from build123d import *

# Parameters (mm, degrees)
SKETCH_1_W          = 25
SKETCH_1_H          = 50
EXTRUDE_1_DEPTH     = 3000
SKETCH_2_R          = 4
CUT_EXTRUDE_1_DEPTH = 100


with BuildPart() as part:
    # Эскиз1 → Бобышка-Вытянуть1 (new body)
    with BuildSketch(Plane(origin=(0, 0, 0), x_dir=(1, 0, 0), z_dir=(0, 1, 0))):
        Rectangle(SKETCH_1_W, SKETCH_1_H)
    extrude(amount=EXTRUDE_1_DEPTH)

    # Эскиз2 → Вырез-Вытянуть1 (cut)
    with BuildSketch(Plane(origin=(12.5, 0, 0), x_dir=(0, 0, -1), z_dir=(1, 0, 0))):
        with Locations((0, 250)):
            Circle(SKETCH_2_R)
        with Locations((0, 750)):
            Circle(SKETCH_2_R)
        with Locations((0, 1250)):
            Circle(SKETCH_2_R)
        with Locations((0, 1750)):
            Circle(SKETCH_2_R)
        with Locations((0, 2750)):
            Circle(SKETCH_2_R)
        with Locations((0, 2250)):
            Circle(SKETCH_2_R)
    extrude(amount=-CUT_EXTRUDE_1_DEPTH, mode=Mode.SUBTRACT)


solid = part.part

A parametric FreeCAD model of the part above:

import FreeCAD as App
import Part
import Sketcher

doc = App.newDocument("Part")
body = doc.addObject("PartDesign::Body", "Body")

# Sketch on XZ plane
sketch1 = body.newObject("Sketcher::SketchObject", "Sketch")
sketch1.AttachmentSupport = (doc.getObject("XZ_Plane"), [""])
sketch1.MapMode = "FlatFace"
sketch1.addGeometry([
    Part.LineSegment(App.Vector(-12, -25, 0), App.Vector(-12, 25, 0)),
    Part.LineSegment(App.Vector(-12, 25, 0), App.Vector(12, 25, 0)),
    Part.LineSegment(App.Vector(12, 25, 0), App.Vector(12, -25, 0)),
    Part.LineSegment(App.Vector(12, -25, 0), App.Vector(-12, -25, 0)),
], False)
sketch1.addConstraint([
    Sketcher.Constraint("Coincident", 0, 2, 1, 1),
    Sketcher.Constraint("Coincident", 1, 2, 2, 1),
    Sketcher.Constraint("Coincident", 2, 2, 3, 1),
    Sketcher.Constraint("Coincident", 3, 2, 0, 1),
    Sketcher.Constraint("Vertical", 0),
    Sketcher.Constraint("Horizontal", 1),
    Sketcher.Constraint("Vertical", 2),
    Sketcher.Constraint("Horizontal", 3),
    Sketcher.Constraint("Symmetric", 0, 2, 2, 2, -1, 1),
    Sketcher.Constraint("DistanceX", 1, 1, 1, 2, 25.0),
    Sketcher.Constraint("DistanceY", 0, 1, 0, 2, 50.0),
])
pad1 = body.newObject("PartDesign::Pad", "Pad")
pad1.Profile = sketch1
pad1.Length = 3000
pad1.Reversed = True

# Sketch on YZ plane
sketch2 = body.newObject("Sketcher::SketchObject", "Sketch001")
sketch2.AttachmentSupport = (doc.getObject("YZ_Plane"), [""])
sketch2.MapMode = "FlatFace"
sketch2.AttachmentOffset = App.Placement(App.Vector(0, 0, 12.5), App.Rotation())
sketch2.addGeometry([
    Part.Circle(App.Vector(250, 0, 0), App.Vector(0, 0, 1), 4),  # 0
    Part.Circle(App.Vector(750, 0, 0), App.Vector(0, 0, 1), 4),  # 1
    Part.Circle(App.Vector(1250, 0, 0), App.Vector(0, 0, 1), 4),  # 2
    Part.Circle(App.Vector(1750, 0, 0), App.Vector(0, 0, 1), 4),  # 3
    Part.Circle(App.Vector(2750, 0, 0), App.Vector(0, 0, 1), 4),  # 4
    Part.Circle(App.Vector(2250, 0, 0), App.Vector(0, 0, 1), 4),  # 5
], False)
sketch2.addConstraint([
    Sketcher.Constraint("Equal", 0, 1),
    Sketcher.Constraint("Equal", 1, 2),
    Sketcher.Constraint("Equal", 2, 3),
    Sketcher.Constraint("Equal", 3, 4),
    Sketcher.Constraint("Equal", 4, 5),
    Sketcher.Constraint("PointOnObject", 0, 3, -1),
    Sketcher.Constraint("PointOnObject", 1, 3, -1),
    Sketcher.Constraint("PointOnObject", 2, 3, -1),
    Sketcher.Constraint("PointOnObject", 3, 3, -1),
    Sketcher.Constraint("PointOnObject", 4, 3, -1),
    Sketcher.Constraint("PointOnObject", 5, 3, -1),
    Sketcher.Constraint("Diameter", 0, 8.0),
    Sketcher.Constraint("DistanceX", -1, 1, 0, 3, 250.0),
    Sketcher.Constraint("DistanceX", -1, 1, 1, 3, 750.0),
    Sketcher.Constraint("DistanceX", -1, 1, 2, 3, 1250.0),
    Sketcher.Constraint("DistanceX", -1, 1, 3, 3, 1750.0),
    Sketcher.Constraint("DistanceX", -1, 1, 4, 3, 2750.0),
    Sketcher.Constraint("DistanceX", -1, 1, 5, 3, 2250.0),
])
pocket1 = body.newObject("PartDesign::Pocket", "Pocket")
pocket1.Profile = sketch2
pocket1.Length = 100

doc.recompute()
